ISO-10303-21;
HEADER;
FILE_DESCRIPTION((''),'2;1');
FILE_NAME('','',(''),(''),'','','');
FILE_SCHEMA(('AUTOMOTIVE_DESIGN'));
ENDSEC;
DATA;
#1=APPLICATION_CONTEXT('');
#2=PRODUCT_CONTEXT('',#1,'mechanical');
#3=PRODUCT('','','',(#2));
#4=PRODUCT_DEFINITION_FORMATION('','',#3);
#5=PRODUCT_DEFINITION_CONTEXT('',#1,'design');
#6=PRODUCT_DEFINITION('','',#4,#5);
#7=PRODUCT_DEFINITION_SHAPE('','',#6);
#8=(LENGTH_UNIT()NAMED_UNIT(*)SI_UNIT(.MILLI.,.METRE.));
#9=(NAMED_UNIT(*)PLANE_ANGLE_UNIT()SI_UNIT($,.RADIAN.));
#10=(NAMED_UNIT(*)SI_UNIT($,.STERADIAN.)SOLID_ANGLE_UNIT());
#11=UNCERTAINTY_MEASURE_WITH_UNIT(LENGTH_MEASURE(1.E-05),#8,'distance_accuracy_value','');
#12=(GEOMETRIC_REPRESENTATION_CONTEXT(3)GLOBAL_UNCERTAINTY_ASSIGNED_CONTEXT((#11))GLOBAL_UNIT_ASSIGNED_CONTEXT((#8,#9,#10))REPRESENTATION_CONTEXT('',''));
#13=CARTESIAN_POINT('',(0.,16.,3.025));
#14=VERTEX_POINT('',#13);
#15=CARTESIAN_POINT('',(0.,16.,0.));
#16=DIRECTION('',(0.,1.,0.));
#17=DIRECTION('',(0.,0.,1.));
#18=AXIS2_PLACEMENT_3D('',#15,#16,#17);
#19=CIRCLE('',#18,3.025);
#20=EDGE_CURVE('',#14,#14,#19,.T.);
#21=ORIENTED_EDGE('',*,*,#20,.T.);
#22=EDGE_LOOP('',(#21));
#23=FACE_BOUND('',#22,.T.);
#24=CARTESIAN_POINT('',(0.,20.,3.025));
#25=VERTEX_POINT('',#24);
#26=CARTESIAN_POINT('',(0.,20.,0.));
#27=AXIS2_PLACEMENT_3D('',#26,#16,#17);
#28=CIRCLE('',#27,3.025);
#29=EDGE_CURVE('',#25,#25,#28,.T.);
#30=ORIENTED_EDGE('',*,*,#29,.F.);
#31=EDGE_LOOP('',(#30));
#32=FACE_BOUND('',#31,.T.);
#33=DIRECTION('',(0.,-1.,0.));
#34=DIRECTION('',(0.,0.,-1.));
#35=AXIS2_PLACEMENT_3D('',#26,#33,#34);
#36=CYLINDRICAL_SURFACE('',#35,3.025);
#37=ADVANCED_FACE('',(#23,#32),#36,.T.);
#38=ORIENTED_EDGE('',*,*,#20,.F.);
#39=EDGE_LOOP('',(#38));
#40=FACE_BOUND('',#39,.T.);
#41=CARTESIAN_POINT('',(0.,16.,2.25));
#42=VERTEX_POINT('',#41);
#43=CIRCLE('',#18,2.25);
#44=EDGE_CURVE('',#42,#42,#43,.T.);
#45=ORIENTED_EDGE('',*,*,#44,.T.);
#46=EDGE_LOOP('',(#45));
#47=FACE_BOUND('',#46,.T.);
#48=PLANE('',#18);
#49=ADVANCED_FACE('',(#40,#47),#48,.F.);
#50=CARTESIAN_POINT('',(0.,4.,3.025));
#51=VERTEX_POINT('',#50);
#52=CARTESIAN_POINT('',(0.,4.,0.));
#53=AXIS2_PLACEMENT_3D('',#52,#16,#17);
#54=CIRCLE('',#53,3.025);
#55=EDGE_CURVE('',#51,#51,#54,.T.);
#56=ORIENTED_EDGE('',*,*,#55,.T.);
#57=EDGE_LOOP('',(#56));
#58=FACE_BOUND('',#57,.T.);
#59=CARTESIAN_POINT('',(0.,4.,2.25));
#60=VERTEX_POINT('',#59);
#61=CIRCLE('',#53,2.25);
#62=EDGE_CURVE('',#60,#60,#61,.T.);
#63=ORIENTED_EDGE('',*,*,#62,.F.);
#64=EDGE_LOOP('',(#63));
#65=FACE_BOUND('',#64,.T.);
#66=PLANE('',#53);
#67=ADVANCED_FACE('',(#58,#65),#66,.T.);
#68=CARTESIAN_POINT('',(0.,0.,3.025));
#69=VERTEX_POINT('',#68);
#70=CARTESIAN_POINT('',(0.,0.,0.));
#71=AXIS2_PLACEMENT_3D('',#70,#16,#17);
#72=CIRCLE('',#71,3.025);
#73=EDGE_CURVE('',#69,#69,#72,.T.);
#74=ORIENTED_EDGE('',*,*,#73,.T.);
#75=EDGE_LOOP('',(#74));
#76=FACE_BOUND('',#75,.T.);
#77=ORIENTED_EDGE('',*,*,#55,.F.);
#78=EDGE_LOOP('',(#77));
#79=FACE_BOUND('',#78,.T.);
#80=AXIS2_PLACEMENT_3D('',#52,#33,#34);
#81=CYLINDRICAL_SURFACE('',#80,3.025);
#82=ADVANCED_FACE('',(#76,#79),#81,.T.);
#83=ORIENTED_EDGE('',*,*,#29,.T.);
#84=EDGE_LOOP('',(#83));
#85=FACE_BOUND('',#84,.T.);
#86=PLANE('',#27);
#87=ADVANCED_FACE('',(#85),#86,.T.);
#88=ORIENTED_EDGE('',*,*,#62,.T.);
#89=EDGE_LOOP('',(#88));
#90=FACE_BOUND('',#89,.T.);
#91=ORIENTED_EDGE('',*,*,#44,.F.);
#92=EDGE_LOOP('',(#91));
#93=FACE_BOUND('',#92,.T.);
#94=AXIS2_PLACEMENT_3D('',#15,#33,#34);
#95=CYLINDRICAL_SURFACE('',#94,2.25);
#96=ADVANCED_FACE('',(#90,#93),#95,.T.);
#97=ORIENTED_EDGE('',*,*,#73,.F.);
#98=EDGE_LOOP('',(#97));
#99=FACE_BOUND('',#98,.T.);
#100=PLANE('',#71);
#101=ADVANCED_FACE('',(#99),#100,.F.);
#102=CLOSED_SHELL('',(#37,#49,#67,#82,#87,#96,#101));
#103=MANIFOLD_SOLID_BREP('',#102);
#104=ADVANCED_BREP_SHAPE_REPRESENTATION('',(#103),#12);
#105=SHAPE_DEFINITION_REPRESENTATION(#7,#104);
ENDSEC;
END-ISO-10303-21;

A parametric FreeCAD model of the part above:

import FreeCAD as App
import Part
import Sketcher

V = App.Vector
Q = App.Units.Quantity

doc = App.newDocument("Part")
body = doc.addObject("PartDesign::Body", "Body")

# Sketch on XZ plane
sketch1 = body.newObject("Sketcher::SketchObject", "Sketch")
sketch1.AttachmentSupport = (doc.getObject("XZ_Plane"), [""])
sketch1.MapMode = "FlatFace"
sketch1.addGeometry(Part.Circle(V(0, 0, 0), V(0, 0, 1), 3), False)
sketch1.addConstraint([
    Sketcher.Constraint("Coincident", 0, 3, -1, 1),
    Sketcher.Constraint("Diameter", 0, Q("6.05 mm")),
])
pad1 = body.newObject("PartDesign::Pad", "Pad")
pad1.Profile = sketch1
pad1.Length = 4
pad1.Reversed = True

# Sketch on XZ plane
sketch2 = body.newObject("Sketcher::SketchObject", "Sketch001")
sketch2.AttachmentSupport = (doc.getObject("XZ_Plane"), [""])
sketch2.MapMode = "FlatFace"
sketch2.AttachmentOffset = App.Placement(V(0, 0, -4), App.Rotation())
sketch2.addGeometry(Part.Circle(V(0, 0, 0), V(0, 0, 1), 2.2), False)
sketch2.addConstraint([
    Sketcher.Constraint("Coincident", 0, 3, -1, 1),
    Sketcher.Constraint("Diameter", 0, Q("4.5 mm")),
])
pad2 = body.newObject("PartDesign::Pad", "Pad001")
pad2.Profile = sketch2
pad2.Length = 12
pad2.Reversed = True

# Sketch on XZ plane
sketch3 = body.newObject("Sketcher::SketchObject", "Sketch002")
sketch3.AttachmentSupport = (doc.getObject("XZ_Plane"), [""])
sketch3.MapMode = "FlatFace"
sketch3.AttachmentOffset = App.Placement(V(0, 0, -16), App.Rotation())
sketch3.addGeometry(Part.Circle(V(0, 0, 0), V(0, 0, 1), 3), False)
sketch3.addConstraint([
    Sketcher.Constraint("Coincident", 0, 3, -1, 1),
    Sketcher.Constraint("Diameter", 0, Q("6.05 mm")),
])
pad3 = body.newObject("PartDesign::Pad", "Pad002")
pad3.Profile = sketch3
pad3.Length = 4
pad3.Reversed = True

doc.recompute()
